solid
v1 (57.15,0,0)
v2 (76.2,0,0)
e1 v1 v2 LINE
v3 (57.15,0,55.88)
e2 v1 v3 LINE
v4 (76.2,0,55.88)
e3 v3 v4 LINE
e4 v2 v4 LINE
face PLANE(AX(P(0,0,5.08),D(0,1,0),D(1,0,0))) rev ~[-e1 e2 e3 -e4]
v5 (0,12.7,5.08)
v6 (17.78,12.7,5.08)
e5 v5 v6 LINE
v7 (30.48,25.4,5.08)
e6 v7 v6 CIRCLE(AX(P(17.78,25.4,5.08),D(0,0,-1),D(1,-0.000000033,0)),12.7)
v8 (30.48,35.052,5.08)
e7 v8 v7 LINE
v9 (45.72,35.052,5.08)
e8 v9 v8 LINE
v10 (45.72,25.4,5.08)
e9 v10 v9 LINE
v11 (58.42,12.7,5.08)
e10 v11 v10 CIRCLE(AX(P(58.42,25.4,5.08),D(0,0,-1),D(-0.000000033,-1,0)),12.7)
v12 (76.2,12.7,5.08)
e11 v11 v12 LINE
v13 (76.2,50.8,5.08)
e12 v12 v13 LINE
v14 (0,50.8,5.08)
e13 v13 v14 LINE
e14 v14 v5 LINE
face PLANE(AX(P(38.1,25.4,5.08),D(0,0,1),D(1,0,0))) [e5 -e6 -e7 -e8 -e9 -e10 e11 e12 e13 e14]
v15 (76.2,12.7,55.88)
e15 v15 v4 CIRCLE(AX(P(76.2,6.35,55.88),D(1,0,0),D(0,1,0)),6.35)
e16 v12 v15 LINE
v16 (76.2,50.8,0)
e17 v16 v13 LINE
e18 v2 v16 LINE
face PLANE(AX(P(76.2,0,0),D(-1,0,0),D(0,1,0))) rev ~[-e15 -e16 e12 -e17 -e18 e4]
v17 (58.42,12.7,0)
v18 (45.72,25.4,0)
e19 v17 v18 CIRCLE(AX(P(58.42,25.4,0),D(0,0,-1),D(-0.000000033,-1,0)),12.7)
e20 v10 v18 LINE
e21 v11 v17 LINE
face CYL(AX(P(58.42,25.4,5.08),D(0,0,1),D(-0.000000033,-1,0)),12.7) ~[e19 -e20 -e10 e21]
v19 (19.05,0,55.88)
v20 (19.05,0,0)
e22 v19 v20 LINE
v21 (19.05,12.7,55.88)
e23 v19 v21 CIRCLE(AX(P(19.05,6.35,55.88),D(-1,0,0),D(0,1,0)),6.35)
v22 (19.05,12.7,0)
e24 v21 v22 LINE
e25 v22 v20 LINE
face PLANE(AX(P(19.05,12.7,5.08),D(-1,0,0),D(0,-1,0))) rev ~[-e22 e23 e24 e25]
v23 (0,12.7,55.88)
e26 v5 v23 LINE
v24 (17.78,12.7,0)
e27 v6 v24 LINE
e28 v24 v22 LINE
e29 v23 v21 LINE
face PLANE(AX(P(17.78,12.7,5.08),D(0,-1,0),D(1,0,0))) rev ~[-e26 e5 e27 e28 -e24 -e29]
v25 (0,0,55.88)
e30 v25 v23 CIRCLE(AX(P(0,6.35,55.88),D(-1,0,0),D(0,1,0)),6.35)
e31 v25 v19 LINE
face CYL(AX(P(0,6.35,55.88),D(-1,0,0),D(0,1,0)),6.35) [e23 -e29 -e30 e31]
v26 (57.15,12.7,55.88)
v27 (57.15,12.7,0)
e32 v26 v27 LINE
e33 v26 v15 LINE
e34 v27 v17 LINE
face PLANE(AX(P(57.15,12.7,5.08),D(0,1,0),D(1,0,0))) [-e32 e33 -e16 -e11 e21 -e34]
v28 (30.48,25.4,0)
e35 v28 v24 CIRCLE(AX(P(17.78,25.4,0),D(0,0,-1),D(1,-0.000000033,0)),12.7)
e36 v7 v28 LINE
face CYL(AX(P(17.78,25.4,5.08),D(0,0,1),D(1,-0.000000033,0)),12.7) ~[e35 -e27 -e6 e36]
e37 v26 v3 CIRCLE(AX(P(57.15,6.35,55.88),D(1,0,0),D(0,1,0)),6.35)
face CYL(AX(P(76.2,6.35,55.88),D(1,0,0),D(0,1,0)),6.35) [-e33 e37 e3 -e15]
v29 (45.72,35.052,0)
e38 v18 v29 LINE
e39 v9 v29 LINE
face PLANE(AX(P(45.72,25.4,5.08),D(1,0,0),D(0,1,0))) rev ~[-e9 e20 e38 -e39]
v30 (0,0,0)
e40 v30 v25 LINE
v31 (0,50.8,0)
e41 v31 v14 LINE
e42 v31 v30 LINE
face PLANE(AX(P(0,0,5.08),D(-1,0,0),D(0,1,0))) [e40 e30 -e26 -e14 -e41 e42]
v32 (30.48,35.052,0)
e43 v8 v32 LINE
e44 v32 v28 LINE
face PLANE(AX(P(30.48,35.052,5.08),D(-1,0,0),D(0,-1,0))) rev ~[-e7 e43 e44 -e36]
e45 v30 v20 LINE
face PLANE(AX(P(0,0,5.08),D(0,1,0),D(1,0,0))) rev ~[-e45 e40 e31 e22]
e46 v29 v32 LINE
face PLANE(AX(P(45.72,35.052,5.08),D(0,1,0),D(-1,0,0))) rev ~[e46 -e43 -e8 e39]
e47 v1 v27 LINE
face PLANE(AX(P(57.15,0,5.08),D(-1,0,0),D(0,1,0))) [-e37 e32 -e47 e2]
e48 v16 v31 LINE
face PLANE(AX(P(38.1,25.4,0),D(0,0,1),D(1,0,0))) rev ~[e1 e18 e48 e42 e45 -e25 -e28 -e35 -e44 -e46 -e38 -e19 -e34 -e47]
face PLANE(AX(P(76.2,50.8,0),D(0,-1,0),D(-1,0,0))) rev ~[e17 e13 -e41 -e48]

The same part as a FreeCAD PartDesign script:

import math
import FreeCAD as App
import Part
import Sketcher
from FreeCAD import Vector
Q = App.Units.Quantity


def add_polygon(sketch, points):
    """Adds a closed chain of lines whose ends are joined by coincident constraints."""
    first, n = sketch.GeometryCount, len(points)
    for a, b in zip(points, points[1:] + points[:1]):
        sketch.addGeometry(Part.LineSegment(App.Vector(*a, 0), App.Vector(*b, 0)), False)
    for i in range(n):
        sketch.addConstraint(Sketcher.Constraint("Coincident", first + i, 2, first + (i + 1) % n, 1))

doc = App.newDocument("Part")
body = doc.addObject("PartDesign::Body", "Body")

sketch1 = doc.addObject("Sketcher::SketchObject", "Sketch")
body.addObject(sketch1)
sketch1.AttachmentSupport = (doc.XY_Plane, [""])
sketch1.MapMode = "FlatFace"
add_polygon(sketch1, [(0, 0), (76, 0), (76, 51), (0, 51)])
sketch1.addConstraint([
    Sketcher.Constraint("Horizontal", 0),
    Sketcher.Constraint("Vertical", 1),
    Sketcher.Constraint("Horizontal", 2),
    Sketcher.Constraint("Vertical", 3),
    Sketcher.Constraint("Coincident", 3, 2, -1, 1),
    Sketcher.Constraint("DistanceX", 0, 1, 0, 2, Q("3 in")),
    Sketcher.Constraint("DistanceY", 1, 1, 1, 2, Q("2 in")),
])
pad1 = doc.addObject("PartDesign::Pad", "Pad")
body.addObject(pad1)
pad1.Profile = sketch1
pad1.Length = Q("0.2 in")

sketch2 = doc.addObject("Sketcher::SketchObject", "Sketch001")
body.addObject(sketch2)
sketch2.AttachmentSupport = (doc.XY_Plane, [""])
sketch2.MapMode = "FlatFace"
sketch2.AttachmentOffset = App.Placement(Vector(0, 0, 0.2 * 25.4), App.Rotation())
add_polygon(sketch2, [(0, 13), (0, 0), (19, 0), (19, 13)])
add_polygon(sketch2, [(57, 13), (57, 0), (76, 0), (76, 13)])
sketch2.addConstraint([
    Sketcher.Constraint("Vertical", 0),
    Sketcher.Constraint("Horizontal", 1),
    Sketcher.Constraint("Vertical", 2),
    Sketcher.Constraint("Horizontal", 3),
    Sketcher.Constraint("Vertical", 4),
    Sketcher.Constraint("Horizontal", 5),
    Sketcher.Constraint("Vertical", 6),
    Sketcher.Constraint("Horizontal", 7),
    Sketcher.Constraint("Coincident", 0, 2, -1, 1),
    Sketcher.Constraint("PointOnObject", 4, 2, -1),
    Sketcher.Constraint("Horizontal", 3, 2, 6, 2),
    Sketcher.Constraint("Equal", 3, 5),
    Sketcher.Constraint("DistanceY", 0, 2, 0, 1, Q("0.5 in")),
    Sketcher.Constraint("DistanceX", -1, 1, 5, 2, Q("3 in")),
    Sketcher.Constraint("DistanceX", 1, 1, 1, 2, Q("0.75 in")),
])
pad2 = doc.addObject("PartDesign::Pad", "Pad001")
body.addObject(pad2)
pad2.Profile = sketch2
pad2.Length = Q("2 in")

sketch3 = doc.addObject("Sketcher::SketchObject", "Sketch002")
body.addObject(sketch3)
sketch3.AttachmentSupport = (doc.YZ_Plane, [""])
sketch3.MapMode = "FlatFace"
sketch3.addGeometry(Part.Circle(Vector(6, 56, 0), Vector(0, 0, 1), 6), False)
sketch3.addConstraint([
    Sketcher.Constraint("Diameter", 0, Q("0.5 in")),
    Sketcher.Constraint("DistanceY", -1, 1, 0, 3, Q("2.2 in")),
    Sketcher.Constraint("DistanceX", -1, 1, 0, 3, Q("0.25 in")),
])
pad3 = doc.addObject("PartDesign::Pad", "Pad002")
body.addObject(pad3)
pad3.Profile = sketch3
pad3.Length = Q("0.75 in")

sketch4 = doc.addObject("Sketcher::SketchObject", "Sketch003")
body.addObject(sketch4)
sketch4.AttachmentSupport = (doc.YZ_Plane, [""])
sketch4.MapMode = "FlatFace"
sketch4.AttachmentOffset = App.Placement(Vector(0, 0, 3 * 25.4), App.Rotation())
sketch4.addGeometry(Part.Circle(Vector(6, 56, 0), Vector(0, 0, 1), 6), False)
sketch4.addConstraint([
    Sketcher.Constraint("Diameter", 0, Q("0.5 in")),
    Sketcher.Constraint("DistanceY", -1, 1, 0, 3, Q("2.2 in")),
    Sketcher.Constraint("DistanceX", -1, 1, 0, 3, Q("0.25 in")),
])
pad4 = doc.addObject("PartDesign::Pad", "Pad003")
body.addObject(pad4)
pad4.Profile = sketch4
pad4.Length = Q("0.75 in")
pad4.Reversed = True

sketch5 = doc.addObject("Sketcher::SketchObject", "Sketch004")
body.addObject(sketch5)
sketch5.AttachmentSupport = (doc.XY_Plane, [""])
sketch5.MapMode = "FlatFace"
sketch5.AttachmentOffset = App.Placement(Vector(0, 0, 0.2 * 25.4), App.Rotation())
sketch5.addGeometry([
    Part.ArcOfCircle(Part.Circle(Vector(17.8, 25.4, 0), Vector(0, 0, 1), 12.7), math.radians(-90), math.radians(0)),
    Part.LineSegment(Vector(17.8, 12.7, 0), Vector(19.1, 12.7, 0)),
    Part.LineSegment(Vector(19.1, 12.7, 0), Vector(19.1, 0, 0)),
    Part.LineSegment(Vector(19.1, 0, 0), Vector(57.1, 0, 0)),
    Part.LineSegment(Vector(57.1, 0, 0), Vector(57.1, 12.7, 0)),
    Part.LineSegment(Vector(57.1, 12.7, 0), Vector(58.4, 12.7, 0)),
    Part.ArcOfCircle(Part.Circle(Vector(58.4, 25.4, 0), Vector(0, 0, 1), 12.7), math.radians(-180), math.radians(-90)),
    Part.LineSegment(Vector(45.7, 25.4, 0), Vector(45.7, 35.1, 0)),
    Part.LineSegment(Vector(45.7, 35.1, 0), Vector(30.5, 35.1, 0)),
    Part.LineSegment(Vector(30.5, 35.1, 0), Vector(30.5, 25.4, 0)),
], False)
sketch5.addConstraint([
    Sketcher.Constraint("Tangent", 0, 1, 1, 1),
    Sketcher.Constraint("Coincident", 1, 2, 2, 1),
    Sketcher.Constraint("Coincident", 2, 2, 3, 1),
    Sketcher.Constraint("Coincident", 3, 2, 4, 1),
    Sketcher.Constraint("Coincident", 4, 2, 5, 1),
    Sketcher.Constraint("Tangent", 5, 2, 6, 2),
    Sketcher.Constraint("Tangent", 6, 1, 7, 1),
    Sketcher.Constraint("Coincident", 7, 2, 8, 1),
    Sketcher.Constraint("Coincident", 8, 2, 9, 1),
    Sketcher.Constraint("Tangent", 9, 2, 0, 2),
    Sketcher.Constraint("Horizontal", 1),
    Sketcher.Constraint("Vertical", 2),
    Sketcher.Constraint("Horizontal", 3),
    Sketcher.Constraint("Vertical", 4),
    Sketcher.Constraint("Horizontal", 5),
    Sketcher.Constraint("Vertical", 7),
    Sketcher.Constraint("Horizontal", 8),
    Sketcher.Constraint("Vertical", 9),
    Sketcher.Constraint("Equal", 0, 6),
    Sketcher.Constraint("PointOnObject", 2, 2, -1),
    Sketcher.Constraint("Horizontal", 0, 3, 6, 3),
    Sketcher.Constraint("Equal", 1, 5),
    Sketcher.Constraint("Radius", 0, Q("0.5 in")),
    Sketcher.Constraint("DistanceX", 3, 1, 3, 2, Q("1.5 in")),
    Sketcher.Constraint("DistanceX", 8, 2, 8, 1, Q("0.6 in")),
    Sketcher.Constraint("DistanceY", 2, 2, 2, 1, Q("0.5 in")),
    Sketcher.Constraint("DistanceY", 7, 1, 7, 2, Q("0.38 in")),
    Sketcher.Constraint("DistanceX", -1, 1, 0, 3, Q("0.7 in")),
])
pocket1 = doc.addObject("PartDesign::Pocket", "Pocket")
body.addObject(pocket1)
pocket1.Profile = sketch5
pocket1.Length = Q("0.2 in")

doc.recompute()
